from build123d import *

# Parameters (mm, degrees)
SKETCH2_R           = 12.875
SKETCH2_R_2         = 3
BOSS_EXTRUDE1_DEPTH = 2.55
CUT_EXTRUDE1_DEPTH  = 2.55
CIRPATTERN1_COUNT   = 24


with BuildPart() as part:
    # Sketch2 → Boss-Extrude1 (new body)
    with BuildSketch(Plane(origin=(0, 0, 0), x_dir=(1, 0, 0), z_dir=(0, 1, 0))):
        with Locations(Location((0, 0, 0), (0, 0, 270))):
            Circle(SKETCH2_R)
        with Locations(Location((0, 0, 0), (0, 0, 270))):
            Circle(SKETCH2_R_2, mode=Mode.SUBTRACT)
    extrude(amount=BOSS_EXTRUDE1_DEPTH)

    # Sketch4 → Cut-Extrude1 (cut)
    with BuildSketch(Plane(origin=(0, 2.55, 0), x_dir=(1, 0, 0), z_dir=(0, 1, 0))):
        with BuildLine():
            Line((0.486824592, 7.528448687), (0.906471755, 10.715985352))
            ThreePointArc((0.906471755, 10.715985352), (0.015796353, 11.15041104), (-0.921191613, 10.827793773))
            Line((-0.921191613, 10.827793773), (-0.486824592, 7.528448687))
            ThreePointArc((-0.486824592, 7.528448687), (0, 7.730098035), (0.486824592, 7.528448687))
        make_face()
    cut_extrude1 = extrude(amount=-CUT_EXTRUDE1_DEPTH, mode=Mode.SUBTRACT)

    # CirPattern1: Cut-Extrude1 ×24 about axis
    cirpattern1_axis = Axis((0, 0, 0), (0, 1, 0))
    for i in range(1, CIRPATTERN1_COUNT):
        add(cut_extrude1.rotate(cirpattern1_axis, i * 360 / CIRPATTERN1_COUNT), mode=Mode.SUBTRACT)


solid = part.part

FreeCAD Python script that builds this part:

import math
import FreeCAD as App
import Part
import Sketcher
Q = App.Units.Quantity

doc = App.newDocument("Part")
body = doc.addObject("PartDesign::Body", "Body")

# Sketch on XZ plane
sketch1 = body.newObject("Sketcher::SketchObject", "Sketch")
sketch1.AttachmentSupport = (doc.getObject("XZ_Plane"), [""])
sketch1.MapMode = "FlatFace"
sketch1.addGeometry(Part.Circle(App.Vector(0, 0, 0), App.Vector(0, 0, 1), 12.875), False)
sketch1.addGeometry(Part.Circle(App.Vector(0, 0, 0), App.Vector(0, 0, 1), 3), False)
sketch1.addConstraint(Sketcher.Constraint("Coincident", 0, 3, -1, 1))
sketch1.addConstraint(Sketcher.Constraint("Coincident", 1, 3, -1, 1))
sketch1.addConstraint(Sketcher.Constraint("Diameter", 1, Q("6 mm")))
sketch1.addConstraint(Sketcher.Constraint("Diameter", 0, Q("25.75 mm")))
pad1 = body.newObject("PartDesign::Pad", "Pad")
pad1.Profile = sketch1
pad1.Length = 2.55
pad1.Reversed = True

# Sketch on XZ plane
sketch2 = body.newObject("Sketcher::SketchObject", "Sketch001")
sketch2.AttachmentSupport = (doc.getObject("XZ_Plane"), [""])
sketch2.MapMode = "FlatFace"
sketch2.AttachmentOffset = App.Placement(App.Vector(0, 0, -2.55), App.Rotation())
sketch2.addGeometry(Part.LineSegment(App.Vector(0.486825, -7.528449, 0), App.Vector(0.906472, -10.715985, 0)), False)
sketch2.addGeometry(Part.ArcOfCircle(Part.Circle(App.Vector(-0.063264, -9.858058, 0), App.Vector(0, 0, 1), 1.294769), math.radians(-131.499259), math.radians(-41.499259)), False)
sketch2.addGeometry(Part.LineSegment(App.Vector(-0.921192, -10.827794, 0), App.Vector(-0.486825, -7.528449, 0)), False)
sketch2.addGeometry(Part.ArcOfCircle(Part.Circle(App.Vector(0, -7.041624, 0), App.Vector(0, 0, 1), 0.688474), math.radians(-135), math.radians(-45)), False)
sketch2.addConstraint(Sketcher.Constraint("Coincident", 0, 2, 1, 2))
sketch2.addConstraint(Sketcher.Constraint("Coincident", 1, 1, 2, 1))
sketch2.addConstraint(Sketcher.Constraint("Coincident", 2, 2, 3, 1))
sketch2.addConstraint(Sketcher.Constraint("Coincident", 3, 2, 0, 1))
sketch2.addConstraint(Sketcher.Constraint("Symmetric", 2, 2, 3, 2, -2))
sketch2.addConstraint(Sketcher.Constraint("Angle", 0, Q("-82.5 deg")))
sketch2.addConstraint(Sketcher.Constraint("Angle", 2, Q("82.5 deg")))
sketch2.addConstraint(Sketcher.Constraint("Radius", 1, Q("1.294769 mm")))
sketch2.addConstraint(Sketcher.Constraint("Radius", 3, Q("0.688474 mm")))
sketch2.addConstraint(Sketcher.Constraint("Distance", 0, Q("3.215042 mm")))
sketch2.addConstraint(Sketcher.Constraint("DistanceX", -1, 1, 0, 2, Q("0.906472 mm")))
sketch2.addConstraint(Sketcher.Constraint("DistanceX", 1, 1, -1, 1, Q("0.921192 mm")))
sketch2.addConstraint(Sketcher.Constraint("DistanceY", 2, 2, -1, 1, Q("7.528449 mm")))
pocket1 = body.newObject("PartDesign::Pocket", "Pocket")
pocket1.Profile = sketch2
pocket1.Length = 2.55
pocket1.Reversed = True
doc.recompute()

polarpattern = body.newObject("PartDesign::PolarPattern", "PolarPattern")
polarpattern.Originals = [pocket1]
polarpattern.Axis = (doc.getObject("Y_Axis"), [""])
polarpattern.Angle = 360
polarpattern.Occurrences = 24
body.Tip = polarpattern

doc.recompute()
